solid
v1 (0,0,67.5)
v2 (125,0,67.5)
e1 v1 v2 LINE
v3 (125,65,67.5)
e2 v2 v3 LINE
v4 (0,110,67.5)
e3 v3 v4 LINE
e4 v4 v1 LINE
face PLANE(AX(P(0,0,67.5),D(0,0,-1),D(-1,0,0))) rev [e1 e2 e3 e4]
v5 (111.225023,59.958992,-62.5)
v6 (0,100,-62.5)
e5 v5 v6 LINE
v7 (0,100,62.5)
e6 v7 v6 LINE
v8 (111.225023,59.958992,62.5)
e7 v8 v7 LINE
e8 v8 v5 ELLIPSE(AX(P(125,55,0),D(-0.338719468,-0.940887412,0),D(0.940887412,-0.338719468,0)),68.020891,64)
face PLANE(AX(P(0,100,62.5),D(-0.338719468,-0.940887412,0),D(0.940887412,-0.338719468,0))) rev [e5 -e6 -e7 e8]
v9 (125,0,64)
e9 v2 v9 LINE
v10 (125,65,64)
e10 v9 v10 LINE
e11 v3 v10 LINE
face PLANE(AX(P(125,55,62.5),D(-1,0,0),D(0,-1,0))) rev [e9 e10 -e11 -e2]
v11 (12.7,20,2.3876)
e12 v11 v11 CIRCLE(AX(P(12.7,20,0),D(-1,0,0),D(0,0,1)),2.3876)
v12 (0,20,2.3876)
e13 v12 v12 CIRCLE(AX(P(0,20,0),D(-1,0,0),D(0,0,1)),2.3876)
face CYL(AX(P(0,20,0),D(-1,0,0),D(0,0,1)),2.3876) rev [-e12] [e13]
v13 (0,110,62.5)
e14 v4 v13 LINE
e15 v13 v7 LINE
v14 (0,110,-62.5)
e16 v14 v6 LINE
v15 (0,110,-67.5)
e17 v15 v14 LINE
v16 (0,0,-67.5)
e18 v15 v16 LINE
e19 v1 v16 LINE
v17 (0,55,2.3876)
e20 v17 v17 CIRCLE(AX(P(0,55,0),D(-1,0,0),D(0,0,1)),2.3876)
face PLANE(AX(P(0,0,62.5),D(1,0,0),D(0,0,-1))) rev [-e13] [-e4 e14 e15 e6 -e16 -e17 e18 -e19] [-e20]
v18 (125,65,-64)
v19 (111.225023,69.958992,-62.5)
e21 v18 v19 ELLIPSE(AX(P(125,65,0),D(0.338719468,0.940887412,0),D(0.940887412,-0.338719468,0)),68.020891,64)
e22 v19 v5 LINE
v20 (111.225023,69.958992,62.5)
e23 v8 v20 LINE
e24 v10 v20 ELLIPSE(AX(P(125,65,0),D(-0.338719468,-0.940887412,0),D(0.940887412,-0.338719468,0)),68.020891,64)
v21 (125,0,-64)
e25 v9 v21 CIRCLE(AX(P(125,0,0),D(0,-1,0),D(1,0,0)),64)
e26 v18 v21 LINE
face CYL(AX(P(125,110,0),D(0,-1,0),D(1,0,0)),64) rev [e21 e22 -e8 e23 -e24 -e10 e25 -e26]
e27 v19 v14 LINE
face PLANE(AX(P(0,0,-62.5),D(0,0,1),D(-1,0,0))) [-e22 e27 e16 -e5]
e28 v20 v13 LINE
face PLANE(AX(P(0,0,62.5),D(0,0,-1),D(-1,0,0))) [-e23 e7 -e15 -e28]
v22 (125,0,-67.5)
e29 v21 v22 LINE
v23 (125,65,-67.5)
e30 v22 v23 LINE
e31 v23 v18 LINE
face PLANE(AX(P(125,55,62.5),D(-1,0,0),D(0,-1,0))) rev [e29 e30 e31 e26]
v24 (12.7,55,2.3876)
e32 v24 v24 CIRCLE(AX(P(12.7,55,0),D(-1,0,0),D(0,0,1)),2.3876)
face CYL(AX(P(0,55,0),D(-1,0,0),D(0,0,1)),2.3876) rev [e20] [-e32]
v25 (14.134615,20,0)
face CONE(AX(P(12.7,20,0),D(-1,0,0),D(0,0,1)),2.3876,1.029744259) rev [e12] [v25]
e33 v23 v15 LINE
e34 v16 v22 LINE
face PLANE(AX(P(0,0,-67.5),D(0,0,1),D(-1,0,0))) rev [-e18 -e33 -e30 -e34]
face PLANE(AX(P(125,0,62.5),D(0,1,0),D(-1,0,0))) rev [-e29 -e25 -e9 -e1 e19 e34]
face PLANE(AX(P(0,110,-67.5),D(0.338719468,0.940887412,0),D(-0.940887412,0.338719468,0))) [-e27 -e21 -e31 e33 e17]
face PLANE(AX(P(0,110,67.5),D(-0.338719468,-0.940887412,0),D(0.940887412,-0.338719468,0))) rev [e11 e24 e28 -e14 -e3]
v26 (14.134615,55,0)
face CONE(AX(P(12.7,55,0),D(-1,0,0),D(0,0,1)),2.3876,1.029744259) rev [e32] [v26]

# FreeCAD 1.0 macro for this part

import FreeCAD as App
import Part
import Sketcher


def add_polygon(sketch, points):
    """Adds a closed chain of lines whose ends are joined by coincident constraints."""
    first, n = sketch.GeometryCount, len(points)
    for a, b in zip(points, points[1:] + points[:1]):
        sketch.addGeometry(Part.LineSegment(App.Vector(*a, 0), App.Vector(*b, 0)), False)
    for i in range(n):
        sketch.addConstraint(Sketcher.Constraint("Coincident", first + i, 2, first + (i + 1) % n, 1))

doc = App.newDocument("Part")
body = doc.addObject("PartDesign::Body", "Body")

sketch1 = body.newObject("Sketcher::SketchObject", "Sketch")
sketch1.AttachmentSupport = (doc.getObject("XY_Plane"), [""])
sketch1.MapMode = "FlatFace"
add_polygon(sketch1, [(0, 100), (0, 0), (125, 0), (125, 55)])
sketch1.addConstraint([
    Sketcher.Constraint("Vertical", 0),
    Sketcher.Constraint("Horizontal", 1),
    Sketcher.Constraint("Vertical", 2),
    Sketcher.Constraint("Coincident", 0, 2, -1, 1),
    Sketcher.Constraint("DistanceX", 1, 1, 1, 2, 125.0),
    Sketcher.Constraint("DistanceY", 0, 2, 0, 1, 100.0),
    Sketcher.Constraint("DistanceY", 2, 1, 2, 2, 55.0),
])
pad1 = body.newObject("PartDesign::Pad", "Pad")
pad1.Profile = sketch1
pad1.Length = 125
pad1.Midplane = True

sketch2 = body.newObject("Sketcher::SketchObject", "Sketch001")
sketch2.AttachmentSupport = (doc.getObject("XY_Plane"), [""])
sketch2.MapMode = "FlatFace"
sketch2.AttachmentOffset = App.Placement(App.Vector(0, 0, 62.5), App.Rotation())
add_polygon(sketch2, [(0, 110), (0, 0), (125, 0), (125, 65)])
sketch2.addConstraint([
    Sketcher.Constraint("Vertical", 0),
    Sketcher.Constraint("Horizontal", 1),
    Sketcher.Constraint("Vertical", 2),
    Sketcher.Constraint("Coincident", 0, 2, -1, 1),
    Sketcher.Constraint("DistanceX", 1, 1, 1, 2, 125.0),
    Sketcher.Constraint("DistanceY", 0, 2, 0, 1, 110.0),
    Sketcher.Constraint("DistanceY", 2, 1, 2, 2, 65.0),
])
pad2 = body.newObject("PartDesign::Pad", "Pad001")
pad2.Profile = sketch2
pad2.Length = 5
doc.recompute()

mirrored = body.newObject("PartDesign::Mirrored", "Mirrored")
mirrored.Originals = [pad2]
mirrored.MirrorPlane = (doc.getObject("XY_Plane"), [""])
body.Tip = mirrored

sketch3 = body.newObject("Sketcher::SketchObject", "Sketch002")
sketch3.AttachmentSupport = (doc.getObject("XZ_Plane"), [""])
sketch3.MapMode = "FlatFace"
sketch3.addGeometry(Part.Circle(App.Vector(125, 0, 0), App.Vector(0, 0, 1), 64), False)
sketch3.addConstraint([
    Sketcher.Constraint("PointOnObject", 0, 3, -1),
    Sketcher.Constraint("Diameter", 0, 128.0),
    Sketcher.Constraint("DistanceX", -1, 1, 0, 3, 125.0),
])
pocket1 = body.newObject("PartDesign::Pocket", "Pocket")
pocket1.Profile = sketch3
pocket1.Type = "ThroughAll"

sketch4 = body.newObject("Sketcher::SketchObject", "Sketch003")
sketch4.AttachmentSupport = (doc.getObject("YZ_Plane"), [""])
sketch4.MapMode = "FlatFace"
sketch4.addGeometry([
    Part.Circle(App.Vector(55, 0, 0), App.Vector(0, 0, 1), 2.4),
    Part.Circle(App.Vector(20, 0, 0), App.Vector(0, 0, 1), 2.4),
], False)
sketch4.addConstraint([
    Sketcher.Constraint("Equal", 0, 1),
    Sketcher.Constraint("PointOnObject", 0, 3, -1),
    Sketcher.Constraint("PointOnObject", 1, 3, -1),
    Sketcher.Constraint("DistanceX", -1, 1, 0, 3, 55.0),
    Sketcher.Constraint("DistanceX", -1, 1, 1, 3, 20.0),
    Sketcher.Constraint("Diameter", 0, 4.7752),
])
doc.recompute()
hole = body.newObject("PartDesign::Hole", "Hole")
hole.Profile = sketch4
hole.ThreadType = "None"
hole.Diameter = 4.7752
hole.DepthType = "Dimension"
hole.Depth = 12.7
hole.DrillPoint = "Angled"
hole.DrillPointAngle = 118
hole.Reversed = True

doc.recompute()
